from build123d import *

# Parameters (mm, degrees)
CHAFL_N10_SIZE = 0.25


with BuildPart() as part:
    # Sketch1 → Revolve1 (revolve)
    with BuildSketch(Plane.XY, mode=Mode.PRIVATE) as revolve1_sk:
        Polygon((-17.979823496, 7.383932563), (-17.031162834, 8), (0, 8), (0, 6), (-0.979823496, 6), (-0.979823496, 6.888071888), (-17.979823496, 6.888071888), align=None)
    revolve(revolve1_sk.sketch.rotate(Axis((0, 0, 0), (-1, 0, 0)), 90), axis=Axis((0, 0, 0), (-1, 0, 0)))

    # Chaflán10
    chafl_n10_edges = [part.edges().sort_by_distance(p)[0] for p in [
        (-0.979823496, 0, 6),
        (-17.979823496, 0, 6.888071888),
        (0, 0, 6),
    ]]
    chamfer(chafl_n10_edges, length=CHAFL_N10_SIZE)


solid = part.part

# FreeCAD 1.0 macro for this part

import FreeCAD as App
import Part
import Sketcher
Q = App.Units.Quantity


def edges_at(feature, points):
    """Names of the edges that pass closest to the given points."""
    edges = feature.Shape.Edges
    near = lambda p: min(range(len(edges)), key=lambda i: edges[i].distToShape(Part.Vertex(*p))[0])
    return sorted({f"Edge{near(p) + 1}" for p in points})

doc = App.newDocument("Part")
body = doc.addObject("PartDesign::Body", "Body")

sketch1 = doc.addObject("Sketcher::SketchObject", "Sketch")
body.addObject(sketch1)
sketch1.AttachmentSupport = (doc.XY_Plane, [""])
sketch1.MapMode = "FlatFace"
sketch1.addGeometry([
    Part.LineSegment(App.Vector(-17.03, 8, 0), App.Vector(-17.98, 7.38, 0)),
    Part.LineSegment(App.Vector(-17.98, 7.38, 0), App.Vector(-17.98, 6.89, 0)),
    Part.LineSegment(App.Vector(-17.98, 6.89, 0), App.Vector(-0.98, 6.89, 0)),
    Part.LineSegment(App.Vector(-0.98, 6.89, 0), App.Vector(-0.98, 6, 0)),
    Part.LineSegment(App.Vector(-0.98, 6, 0), App.Vector(0, 6, 0)),
    Part.LineSegment(App.Vector(0, 6, 0), App.Vector(0, 8, 0)),
    Part.LineSegment(App.Vector(0, 8, 0), App.Vector(-17.03, 8, 0)),
], False)
sketch1.addConstraint([
    Sketcher.Constraint("Coincident", 0, 2, 1, 1),
    Sketcher.Constraint("Coincident", 1, 2, 2, 1),
    Sketcher.Constraint("Coincident", 2, 2, 3, 1),
    Sketcher.Constraint("Coincident", 3, 2, 4, 1),
    Sketcher.Constraint("Coincident", 4, 2, 5, 1),
    Sketcher.Constraint("Coincident", 5, 2, 6, 1),
    Sketcher.Constraint("Coincident", 6, 2, 0, 1),
    Sketcher.Constraint("Vertical", 1),
    Sketcher.Constraint("Horizontal", 2),
    Sketcher.Constraint("Vertical", 3),
    Sketcher.Constraint("Horizontal", 4),
    Sketcher.Constraint("Vertical", 5),
    Sketcher.Constraint("Horizontal", 6),
    Sketcher.Constraint("PointOnObject", 4, 2, -2),
    Sketcher.Constraint("DistanceX", 2, 1, 2, 2, Q("17 mm")),
    Sketcher.Constraint("DistanceY", 5, 1, 5, 2, Q("2 mm")),
    Sketcher.Constraint("Angle", 0, Q("-147 deg")),
    Sketcher.Constraint("DistanceY", -1, 1, 3, 2, Q("6 mm")),
    Sketcher.Constraint("DistanceY", 1, 2, 1, 1, Q("0.495861 mm")),
    Sketcher.Constraint("DistanceY", 3, 2, 3, 1, Q("0.888072 mm")),
    Sketcher.Constraint("DistanceX", 4, 1, 4, 2, Q("0.979823 mm")),
])
revolution = doc.addObject("PartDesign::Revolution", "Revolution")
body.addObject(revolution)
revolution.Profile = sketch1
revolution.ReferenceAxis = (sketch1, ["H_Axis"])
revolution.Angle = 360
doc.recompute()

chamfer = doc.addObject("PartDesign::Chamfer", "Chamfer")
body.addObject(chamfer)
chamfer.Base = (revolution, edges_at(revolution, [(-0.98, 0, 6), (-17.98, 0, 6.888), (0, 0, 6)]))
chamfer.Size = 0.25

doc.recompute()
